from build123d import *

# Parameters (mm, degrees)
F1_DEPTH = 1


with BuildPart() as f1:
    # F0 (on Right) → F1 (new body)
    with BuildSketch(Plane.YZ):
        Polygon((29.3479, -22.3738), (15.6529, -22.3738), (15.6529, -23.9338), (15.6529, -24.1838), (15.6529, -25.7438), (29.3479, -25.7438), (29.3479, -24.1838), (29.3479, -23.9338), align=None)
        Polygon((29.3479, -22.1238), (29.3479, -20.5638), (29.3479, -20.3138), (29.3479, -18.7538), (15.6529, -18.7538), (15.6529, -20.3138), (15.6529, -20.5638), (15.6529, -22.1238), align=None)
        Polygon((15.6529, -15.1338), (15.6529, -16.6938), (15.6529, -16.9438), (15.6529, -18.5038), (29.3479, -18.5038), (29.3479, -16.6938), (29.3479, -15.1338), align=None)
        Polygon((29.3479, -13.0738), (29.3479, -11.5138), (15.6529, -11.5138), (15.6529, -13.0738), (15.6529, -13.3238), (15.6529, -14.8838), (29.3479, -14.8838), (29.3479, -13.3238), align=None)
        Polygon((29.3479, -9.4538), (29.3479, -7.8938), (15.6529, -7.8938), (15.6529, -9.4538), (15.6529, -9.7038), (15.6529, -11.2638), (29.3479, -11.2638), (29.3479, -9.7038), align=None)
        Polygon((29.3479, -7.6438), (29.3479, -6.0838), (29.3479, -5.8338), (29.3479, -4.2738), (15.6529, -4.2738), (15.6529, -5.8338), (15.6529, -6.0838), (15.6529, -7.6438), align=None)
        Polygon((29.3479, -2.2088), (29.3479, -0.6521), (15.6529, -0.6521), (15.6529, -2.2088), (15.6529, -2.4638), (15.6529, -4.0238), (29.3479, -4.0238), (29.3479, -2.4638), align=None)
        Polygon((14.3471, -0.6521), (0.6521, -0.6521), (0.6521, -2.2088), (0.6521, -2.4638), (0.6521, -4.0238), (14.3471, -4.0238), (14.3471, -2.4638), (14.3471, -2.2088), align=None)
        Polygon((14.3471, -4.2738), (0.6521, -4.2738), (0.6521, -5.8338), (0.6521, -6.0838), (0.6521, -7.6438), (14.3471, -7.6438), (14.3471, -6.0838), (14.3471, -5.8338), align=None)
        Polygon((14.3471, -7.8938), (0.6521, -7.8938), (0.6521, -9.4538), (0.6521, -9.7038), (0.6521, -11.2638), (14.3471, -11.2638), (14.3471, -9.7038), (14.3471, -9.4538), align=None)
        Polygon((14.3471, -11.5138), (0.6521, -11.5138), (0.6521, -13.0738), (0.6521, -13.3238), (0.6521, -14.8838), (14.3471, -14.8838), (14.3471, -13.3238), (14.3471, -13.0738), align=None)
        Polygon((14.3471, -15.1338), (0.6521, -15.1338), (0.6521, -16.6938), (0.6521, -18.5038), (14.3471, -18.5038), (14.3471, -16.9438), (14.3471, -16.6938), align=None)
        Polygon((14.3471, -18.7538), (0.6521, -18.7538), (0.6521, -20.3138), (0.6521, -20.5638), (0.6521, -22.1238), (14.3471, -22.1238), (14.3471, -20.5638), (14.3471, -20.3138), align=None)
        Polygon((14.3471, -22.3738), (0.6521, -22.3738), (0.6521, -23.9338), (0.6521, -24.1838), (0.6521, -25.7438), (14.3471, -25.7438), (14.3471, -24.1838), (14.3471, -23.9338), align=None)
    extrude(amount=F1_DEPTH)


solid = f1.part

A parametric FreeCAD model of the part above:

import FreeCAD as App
import Part
import Sketcher

V = App.Vector

doc = App.newDocument("Part")
body = doc.addObject("PartDesign::Body", "Body")
body.AllowCompound = True

# Sketch on YZ plane
sketch1 = doc.addObject("Sketcher::SketchObject", "Sketch")
body.addObject(sketch1)
sketch1.AttachmentSupport = (doc.YZ_Plane, [""])
sketch1.MapMode = "FlatFace"
sketch1.addGeometry(Part.LineSegment(V(29.3479, -22.3738, 0), V(15.6529, -22.3738, 0)), False)
sketch1.addGeometry(Part.LineSegment(V(15.6529, -22.3738, 0), V(15.6529, -25.7438, 0)), False)
sketch1.addGeometry(Part.LineSegment(V(15.6529, -25.7438, 0), V(29.3479, -25.7438, 0)), False)
sketch1.addGeometry(Part.LineSegment(V(29.3479, -25.7438, 0), V(29.3479, -22.3738, 0)), False)
sketch1.addGeometry(Part.LineSegment(V(29.3479, -22.1238, 0), V(29.3479, -18.7538, 0)), False)
sketch1.addGeometry(Part.LineSegment(V(29.3479, -18.7538, 0), V(15.6529, -18.7538, 0)), False)
sketch1.addGeometry(Part.LineSegment(V(15.6529, -18.7538, 0), V(15.6529, -22.1238, 0)), False)
sketch1.addGeometry(Part.LineSegment(V(15.6529, -22.1238, 0), V(29.3479, -22.1238, 0)), False)
sketch1.addGeometry(Part.LineSegment(V(15.6529, -15.1338, 0), V(15.6529, -18.5038, 0)), False)
sketch1.addGeometry(Part.LineSegment(V(15.6529, -18.5038, 0), V(29.3479, -18.5038, 0)), False)
sketch1.addGeometry(Part.LineSegment(V(29.3479, -18.5038, 0), V(29.3479, -15.1338, 0)), False)
sketch1.addGeometry(Part.LineSegment(V(29.3479, -15.1338, 0), V(15.6529, -15.1338, 0)), False)
sketch1.addGeometry(Part.LineSegment(V(29.3479, -11.5138, 0), V(15.6529, -11.5138, 0)), False)
sketch1.addGeometry(Part.LineSegment(V(15.6529, -11.5138, 0), V(15.6529, -14.8838, 0)), False)
sketch1.addGeometry(Part.LineSegment(V(15.6529, -14.8838, 0), V(29.3479, -14.8838, 0)), False)
sketch1.addGeometry(Part.LineSegment(V(29.3479, -14.8838, 0), V(29.3479, -11.5138, 0)), False)
sketch1.addGeometry(Part.LineSegment(V(29.3479, -7.8938, 0), V(15.6529, -7.8938, 0)), False)
sketch1.addGeometry(Part.LineSegment(V(15.6529, -7.8938, 0), V(15.6529, -11.2638, 0)), False)
sketch1.addGeometry(Part.LineSegment(V(15.6529, -11.2638, 0), V(29.3479, -11.2638, 0)), False)
sketch1.addGeometry(Part.LineSegment(V(29.3479, -11.2638, 0), V(29.3479, -7.8938, 0)), False)
sketch1.addGeometry(Part.LineSegment(V(29.3479, -7.6438, 0), V(29.3479, -4.2738, 0)), False)
sketch1.addGeometry(Part.LineSegment(V(29.3479, -4.2738, 0), V(15.6529, -4.2738, 0)), False)
sketch1.addGeometry(Part.LineSegment(V(15.6529, -4.2738, 0), V(15.6529, -7.6438, 0)), False)
sketch1.addGeometry(Part.LineSegment(V(15.6529, -7.6438, 0), V(29.3479, -7.6438, 0)), False)
sketch1.addGeometry(Part.LineSegment(V(29.3479, -0.6521, 0), V(15.6529, -0.6521, 0)), False)
sketch1.addGeometry(Part.LineSegment(V(15.6529, -0.6521, 0), V(15.6529, -4.0238, 0)), False)
sketch1.addGeometry(Part.LineSegment(V(15.6529, -4.0238, 0), V(29.3479, -4.0238, 0)), False)
sketch1.addGeometry(Part.LineSegment(V(29.3479, -4.0238, 0), V(29.3479, -0.6521, 0)), False)
sketch1.addGeometry(Part.LineSegment(V(14.3471, -0.6521, 0), V(0.6521, -0.6521, 0)), False)
sketch1.addGeometry(Part.LineSegment(V(0.6521, -0.6521, 0), V(0.6521, -4.0238, 0)), False)
sketch1.addGeometry(Part.LineSegment(V(0.6521, -4.0238, 0), V(14.3471, -4.0238, 0)), False)
sketch1.addGeometry(Part.LineSegment(V(14.3471, -4.0238, 0), V(14.3471, -0.6521, 0)), False)
sketch1.addGeometry(Part.LineSegment(V(14.3471, -4.2738, 0), V(0.6521, -4.2738, 0)), False)
sketch1.addGeometry(Part.LineSegment(V(0.6521, -4.2738, 0), V(0.6521, -7.6438, 0)), False)
sketch1.addGeometry(Part.LineSegment(V(0.6521, -7.6438, 0), V(14.3471, -7.6438, 0)), False)
sketch1.addGeometry(Part.LineSegment(V(14.3471, -7.6438, 0), V(14.3471, -4.2738, 0)), False)
sketch1.addGeometry(Part.LineSegment(V(14.3471, -7.8938, 0), V(0.6521, -7.8938, 0)), False)
sketch1.addGeometry(Part.LineSegment(V(0.6521, -7.8938, 0), V(0.6521, -11.2638, 0)), False)
sketch1.addGeometry(Part.LineSegment(V(0.6521, -11.2638, 0), V(14.3471, -11.2638, 0)), False)
sketch1.addGeometry(Part.LineSegment(V(14.3471, -11.2638, 0), V(14.3471, -7.8938, 0)), False)
sketch1.addGeometry(Part.LineSegment(V(14.3471, -11.5138, 0), V(0.6521, -11.5138, 0)), False)
sketch1.addGeometry(Part.LineSegment(V(0.6521, -11.5138, 0), V(0.6521, -14.8838, 0)), False)
sketch1.addGeometry(Part.LineSegment(V(0.6521, -14.8838, 0), V(14.3471, -14.8838, 0)), False)
sketch1.addGeometry(Part.LineSegment(V(14.3471, -14.8838, 0), V(14.3471, -11.5138, 0)), False)
sketch1.addGeometry(Part.LineSegment(V(14.3471, -15.1338, 0), V(0.6521, -15.1338, 0)), False)
sketch1.addGeometry(Part.LineSegment(V(0.6521, -15.1338, 0), V(0.6521, -18.5038, 0)), False)
sketch1.addGeometry(Part.LineSegment(V(0.6521, -18.5038, 0), V(14.3471, -18.5038, 0)), False)
sketch1.addGeometry(Part.LineSegment(V(14.3471, -18.5038, 0), V(14.3471, -15.1338, 0)), False)
sketch1.addGeometry(Part.LineSegment(V(14.3471, -18.7538, 0), V(0.6521, -18.7538, 0)), False)
sketch1.addGeometry(Part.LineSegment(V(0.6521, -18.7538, 0), V(0.6521, -22.1238, 0)), False)
sketch1.addGeometry(Part.LineSegment(V(0.6521, -22.1238, 0), V(14.3471, -22.1238, 0)), False)
sketch1.addGeometry(Part.LineSegment(V(14.3471, -22.1238, 0), V(14.3471, -18.7538, 0)), False)
sketch1.addGeometry(Part.LineSegment(V(14.3471, -22.3738, 0), V(0.6521, -22.3738, 0)), False)
sketch1.addGeometry(Part.LineSegment(V(0.6521, -22.3738, 0), V(0.6521, -25.7438, 0)), False)
sketch1.addGeometry(Part.LineSegment(V(0.6521, -25.7438, 0), V(14.3471, -25.7438, 0)), False)
sketch1.addGeometry(Part.LineSegment(V(14.3471, -25.7438, 0), V(14.3471, -22.3738, 0)), False)
sketch1.addConstraint(Sketcher.Constraint("Coincident", 0, 2, 1, 1))
sketch1.addConstraint(Sketcher.Constraint("Coincident", 1, 2, 2, 1))
sketch1.addConstraint(Sketcher.Constraint("Coincident", 2, 2, 3, 1))
sketch1.addConstraint(Sketcher.Constraint("Coincident", 3, 2, 0, 1))
sketch1.addConstraint(Sketcher.Constraint("Coincident", 4, 2, 5, 1))
sketch1.addConstraint(Sketcher.Constraint("Coincident", 5, 2, 6, 1))
sketch1.addConstraint(Sketcher.Constraint("Coincident", 6, 2, 7, 1))
sketch1.addConstraint(Sketcher.Constraint("Coincident", 7, 2, 4, 1))
sketch1.addConstraint(Sketcher.Constraint("Coincident", 8, 2, 9, 1))
sketch1.addConstraint(Sketcher.Constraint("Coincident", 9, 2, 10, 1))
sketch1.addConstraint(Sketcher.Constraint("Coincident", 10, 2, 11, 1))
sketch1.addConstraint(Sketcher.Constraint("Coincident", 11, 2, 8, 1))
sketch1.addConstraint(Sketcher.Constraint("Coincident", 12, 2, 13, 1))
sketch1.addConstraint(Sketcher.Constraint("Coincident", 13, 2, 14, 1))
sketch1.addConstraint(Sketcher.Constraint("Coincident", 14, 2, 15, 1))
sketch1.addConstraint(Sketcher.Constraint("Coincident", 15, 2, 12, 1))
sketch1.addConstraint(Sketcher.Constraint("Coincident", 16, 2, 17, 1))
sketch1.addConstraint(Sketcher.Constraint("Coincident", 17, 2, 18, 1))
sketch1.addConstraint(Sketcher.Constraint("Coincident", 18, 2, 19, 1))
sketch1.addConstraint(Sketcher.Constraint("Coincident", 19, 2, 16, 1))
sketch1.addConstraint(Sketcher.Constraint("Coincident", 20, 2, 21, 1))
sketch1.addConstraint(Sketcher.Constraint("Coincident", 21, 2, 22, 1))
sketch1.addConstraint(Sketcher.Constraint("Coincident", 22, 2, 23, 1))
sketch1.addConstraint(Sketcher.Constraint("Coincident", 23, 2, 20, 1))
sketch1.addConstraint(Sketcher.Constraint("Coincident", 24, 2, 25, 1))
sketch1.addConstraint(Sketcher.Constraint("Coincident", 25, 2, 26, 1))
sketch1.addConstraint(Sketcher.Constraint("Coincident", 26, 2, 27, 1))
sketch1.addConstraint(Sketcher.Constraint("Coincident", 27, 2, 24, 1))
sketch1.addConstraint(Sketcher.Constraint("Coincident", 28, 2, 29, 1))
sketch1.addConstraint(Sketcher.Constraint("Coincident", 29, 2, 30, 1))
sketch1.addConstraint(Sketcher.Constraint("Coincident", 30, 2, 31, 1))
sketch1.addConstraint(Sketcher.Constraint("Coincident", 31, 2, 28, 1))
sketch1.addConstraint(Sketcher.Constraint("Coincident", 32, 2, 33, 1))
sketch1.addConstraint(Sketcher.Constraint("Coincident", 33, 2, 34, 1))
sketch1.addConstraint(Sketcher.Constraint("Coincident", 34, 2, 35, 1))
sketch1.addConstraint(Sketcher.Constraint("Coincident", 35, 2, 32, 1))
sketch1.addConstraint(Sketcher.Constraint("Coincident", 36, 2, 37, 1))
sketch1.addConstraint(Sketcher.Constraint("Coincident", 37, 2, 38, 1))
sketch1.addConstraint(Sketcher.Constraint("Coincident", 38, 2, 39, 1))
sketch1.addConstraint(Sketcher.Constraint("Coincident", 39, 2, 36, 1))
sketch1.addConstraint(Sketcher.Constraint("Coincident", 40, 2, 41, 1))
sketch1.addConstraint(Sketcher.Constraint("Coincident", 41, 2, 42, 1))
sketch1.addConstraint(Sketcher.Constraint("Coincident", 42, 2, 43, 1))
sketch1.addConstraint(Sketcher.Constraint("Coincident", 43, 2, 40, 1))
sketch1.addConstraint(Sketcher.Constraint("Coincident", 44, 2, 45, 1))
sketch1.addConstraint(Sketcher.Constraint("Coincident", 45, 2, 46, 1))
sketch1.addConstraint(Sketcher.Constraint("Coincident", 46, 2, 47, 1))
sketch1.addConstraint(Sketcher.Constraint("Coincident", 47, 2, 44, 1))
sketch1.addConstraint(Sketcher.Constraint("Coincident", 48, 2, 49, 1))
sketch1.addConstraint(Sketcher.Constraint("Coincident", 49, 2, 50, 1))
sketch1.addConstraint(Sketcher.Constraint("Coincident", 50, 2, 51, 1))
sketch1.addConstraint(Sketcher.Constraint("Coincident", 51, 2, 48, 1))
sketch1.addConstraint(Sketcher.Constraint("Coincident", 52, 2, 53, 1))
sketch1.addConstraint(Sketcher.Constraint("Coincident", 53, 2, 54, 1))
sketch1.addConstraint(Sketcher.Constraint("Coincident", 54, 2, 55, 1))
sketch1.addConstraint(Sketcher.Constraint("Coincident", 55, 2, 52, 1))
sketch1.addConstraint(Sketcher.Constraint("Horizontal", 0))
sketch1.addConstraint(Sketcher.Constraint("Vertical", 1))
sketch1.addConstraint(Sketcher.Constraint("Horizontal", 2))
sketch1.addConstraint(Sketcher.Constraint("Vertical", 3))
sketch1.addConstraint(Sketcher.Constraint("Vertical", 4))
sketch1.addConstraint(Sketcher.Constraint("Horizontal", 5))
sketch1.addConstraint(Sketcher.Constraint("Vertical", 6))
sketch1.addConstraint(Sketcher.Constraint("Horizontal", 7))
sketch1.addConstraint(Sketcher.Constraint("Vertical", 8))
sketch1.addConstraint(Sketcher.Constraint("Horizontal", 9))
sketch1.addConstraint(Sketcher.Constraint("Vertical", 10))
sketch1.addConstraint(Sketcher.Constraint("Horizontal", 11))
sketch1.addConstraint(Sketcher.Constraint("Horizontal", 12))
sketch1.addConstraint(Sketcher.Constraint("Vertical", 13))
sketch1.addConstraint(Sketcher.Constraint("Horizontal", 14))
sketch1.addConstraint(Sketcher.Constraint("Vertical", 15))
sketch1.addConstraint(Sketcher.Constraint("Horizontal", 16))
sketch1.addConstraint(Sketcher.Constraint("Vertical", 17))
sketch1.addConstraint(Sketcher.Constraint("Horizontal", 18))
sketch1.addConstraint(Sketcher.Constraint("Vertical", 19))
sketch1.addConstraint(Sketcher.Constraint("Vertical", 20))
sketch1.addConstraint(Sketcher.Constraint("Horizontal", 21))
sketch1.addConstraint(Sketcher.Constraint("Vertical", 22))
sketch1.addConstraint(Sketcher.Constraint("Horizontal", 23))
sketch1.addConstraint(Sketcher.Constraint("Horizontal", 24))
sketch1.addConstraint(Sketcher.Constraint("Vertical", 25))
sketch1.addConstraint(Sketcher.Constraint("Horizontal", 26))
sketch1.addConstraint(Sketcher.Constraint("Vertical", 27))
sketch1.addConstraint(Sketcher.Constraint("Horizontal", 28))
sketch1.addConstraint(Sketcher.Constraint("Vertical", 29))
sketch1.addConstraint(Sketcher.Constraint("Horizontal", 30))
sketch1.addConstraint(Sketcher.Constraint("Vertical", 31))
sketch1.addConstraint(Sketcher.Constraint("Horizontal", 32))
sketch1.addConstraint(Sketcher.Constraint("Vertical", 33))
sketch1.addConstraint(Sketcher.Constraint("Horizontal", 34))
sketch1.addConstraint(Sketcher.Constraint("Vertical", 35))
sketch1.addConstraint(Sketcher.Constraint("Horizontal", 36))
sketch1.addConstraint(Sketcher.Constraint("Vertical", 37))
sketch1.addConstraint(Sketcher.Constraint("Horizontal", 38))
sketch1.addConstraint(Sketcher.Constraint("Vertical", 39))
sketch1.addConstraint(Sketcher.Constraint("Horizontal", 40))
sketch1.addConstraint(Sketcher.Constraint("Vertical", 41))
sketch1.addConstraint(Sketcher.Constraint("Horizontal", 42))
sketch1.addConstraint(Sketcher.Constraint("Vertical", 43))
sketch1.addConstraint(Sketcher.Constraint("Horizontal", 44))
sketch1.addConstraint(Sketcher.Constraint("Vertical", 45))
sketch1.addConstraint(Sketcher.Constraint("Horizontal", 46))
sketch1.addConstraint(Sketcher.Constraint("Vertical", 47))
sketch1.addConstraint(Sketcher.Constraint("Horizontal", 48))
sketch1.addConstraint(Sketcher.Constraint("Vertical", 49))
sketch1.addConstraint(Sketcher.Constraint("Horizontal", 50))
sketch1.addConstraint(Sketcher.Constraint("Vertical", 51))
sketch1.addConstraint(Sketcher.Constraint("Horizontal", 52))
sketch1.addConstraint(Sketcher.Constraint("Vertical", 53))
sketch1.addConstraint(Sketcher.Constraint("Horizontal", 54))
sketch1.addConstraint(Sketcher.Constraint("Vertical", 55))
sketch1.addConstraint(Sketcher.Constraint("Horizontal", 27, 2, 28, 2))
sketch1.addConstraint(Sketcher.Constraint("Horizontal", 26, 2, 29, 2))
sketch1.addConstraint(Sketcher.Constraint("Horizontal", 21, 2, 32, 2))
sketch1.addConstraint(Sketcher.Constraint("Horizontal", 23, 2, 33, 2))
sketch1.addConstraint(Sketcher.Constraint("Horizontal", 19, 2, 36, 2))
sketch1.addConstraint(Sketcher.Constraint("Horizontal", 18, 2, 37, 2))
sketch1.addConstraint(Sketcher.Constraint("Horizontal", 15, 2, 40, 2))
sketch1.addConstraint(Sketcher.Constraint("Horizontal", 14, 2, 41, 2))
sketch1.addConstraint(Sketcher.Constraint("Horizontal", 11, 2, 44, 2))
sketch1.addConstraint(Sketcher.Constraint("Horizontal", 9, 2, 45, 2))
sketch1.addConstraint(Sketcher.Constraint("Horizontal", 5, 2, 48, 2))
sketch1.addConstraint(Sketcher.Constraint("Horizontal", 7, 2, 49, 2))
sketch1.addConstraint(Sketcher.Constraint("Horizontal", 3, 2, 52, 2))
sketch1.addConstraint(Sketcher.Constraint("Horizontal", 2, 2, 53, 2))
sketch1.addConstraint(Sketcher.Constraint("Vertical", 3, 2, 4, 2))
sketch1.addConstraint(Sketcher.Constraint("Vertical", 1, 2, 5, 2))
sketch1.addConstraint(Sketcher.Constraint("Vertical", 6, 2, 8, 2))
sketch1.addConstraint(Sketcher.Constraint("Vertical", 7, 2, 9, 2))
sketch1.addConstraint(Sketcher.Constraint("Vertical", 11, 2, 12, 2))
sketch1.addConstraint(Sketcher.Constraint("Vertical", 10, 2, 14, 2))
sketch1.addConstraint(Sketcher.Constraint("Vertical", 13, 2, 16, 2))
sketch1.addConstraint(Sketcher.Constraint("Vertical", 15, 2, 18, 2))
sketch1.addConstraint(Sketcher.Constraint("Vertical", 19, 2, 20, 2))
sketch1.addConstraint(Sketcher.Constraint("Vertical", 17, 2, 21, 2))
sketch1.addConstraint(Sketcher.Constraint("Vertical", 22, 2, 24, 2))
sketch1.addConstraint(Sketcher.Constraint("Vertical", 23, 2, 26, 2))
sketch1.addConstraint(Sketcher.Constraint("Vertical", 29, 2, 32, 2))
sketch1.addConstraint(Sketcher.Constraint("Vertical", 31, 2, 34, 2))
sketch1.addConstraint(Sketcher.Constraint("Vertical", 33, 2, 36, 2))
sketch1.addConstraint(Sketcher.Constraint("Vertical", 35, 2, 38, 2))
sketch1.addConstraint(Sketcher.Constraint("Vertical", 37, 2, 40, 2))
sketch1.addConstraint(Sketcher.Constraint("Vertical", 39, 2, 42, 2))
sketch1.addConstraint(Sketcher.Constraint("Vertical", 41, 2, 44, 2))
sketch1.addConstraint(Sketcher.Constraint("Vertical", 43, 2, 46, 2))
sketch1.addConstraint(Sketcher.Constraint("Vertical", 45, 2, 48, 2))
sketch1.addConstraint(Sketcher.Constraint("Vertical", 47, 2, 50, 2))
sketch1.addConstraint(Sketcher.Constraint("Vertical", 49, 2, 52, 2))
sketch1.addConstraint(Sketcher.Constraint("Vertical", 51, 2, 54, 2))
sketch1.addConstraint(Sketcher.Constraint("Equal", 26, 28))
sketch1.addConstraint(Sketcher.Constraint("Equal", 3, 4))
sketch1.addConstraint(Sketcher.Constraint("Equal", 6, 8))
sketch1.addConstraint(Sketcher.Constraint("Equal", 10, 13))
sketch1.addConstraint(Sketcher.Constraint("Equal", 15, 17))
sketch1.addConstraint(Sketcher.Constraint("Equal", 19, 20))
sketch1.addConstraint(Sketcher.Constraint("DistanceY", 1, 2, 1, 1, 3.37))
sketch1.addConstraint(Sketcher.Constraint("DistanceX", 0, 2, 0, 1, 13.695))
sketch1.addConstraint(Sketcher.Constraint("DistanceY", 3, 2, 4, 2, 3.62))
sketch1.addConstraint(Sketcher.Constraint("DistanceY", 5, 2, 8, 2, 0.25))
sketch1.addConstraint(Sketcher.Constraint("DistanceY", 11, 2, 12, 2, 3.62))
sketch1.addConstraint(Sketcher.Constraint("DistanceY", 12, 2, 16, 2, 3.62))
sketch1.addConstraint(Sketcher.Constraint("DistanceY", 19, 2, 20, 2, 3.62))
sketch1.addConstraint(Sketcher.Constraint("DistanceY", 21, 2, 25, 2, 0.25))
sketch1.addConstraint(Sketcher.Constraint("DistanceY", 25, 2, 25, 1, 3.3717))
sketch1.addConstraint(Sketcher.Constraint("DistanceX", -1, 1, 0, 2, 15.6529))
sketch1.addConstraint(Sketcher.Constraint("DistanceY", 0, 2, -1, 1, 22.3738))
sketch1.addConstraint(Sketcher.Constraint("DistanceX", -1, 1, 28, 2, 0.6521))
pad1 = doc.addObject("PartDesign::Pad", "Pad")
body.addObject(pad1)
pad1.Profile = sketch1
pad1.Length = 1

doc.recompute()
